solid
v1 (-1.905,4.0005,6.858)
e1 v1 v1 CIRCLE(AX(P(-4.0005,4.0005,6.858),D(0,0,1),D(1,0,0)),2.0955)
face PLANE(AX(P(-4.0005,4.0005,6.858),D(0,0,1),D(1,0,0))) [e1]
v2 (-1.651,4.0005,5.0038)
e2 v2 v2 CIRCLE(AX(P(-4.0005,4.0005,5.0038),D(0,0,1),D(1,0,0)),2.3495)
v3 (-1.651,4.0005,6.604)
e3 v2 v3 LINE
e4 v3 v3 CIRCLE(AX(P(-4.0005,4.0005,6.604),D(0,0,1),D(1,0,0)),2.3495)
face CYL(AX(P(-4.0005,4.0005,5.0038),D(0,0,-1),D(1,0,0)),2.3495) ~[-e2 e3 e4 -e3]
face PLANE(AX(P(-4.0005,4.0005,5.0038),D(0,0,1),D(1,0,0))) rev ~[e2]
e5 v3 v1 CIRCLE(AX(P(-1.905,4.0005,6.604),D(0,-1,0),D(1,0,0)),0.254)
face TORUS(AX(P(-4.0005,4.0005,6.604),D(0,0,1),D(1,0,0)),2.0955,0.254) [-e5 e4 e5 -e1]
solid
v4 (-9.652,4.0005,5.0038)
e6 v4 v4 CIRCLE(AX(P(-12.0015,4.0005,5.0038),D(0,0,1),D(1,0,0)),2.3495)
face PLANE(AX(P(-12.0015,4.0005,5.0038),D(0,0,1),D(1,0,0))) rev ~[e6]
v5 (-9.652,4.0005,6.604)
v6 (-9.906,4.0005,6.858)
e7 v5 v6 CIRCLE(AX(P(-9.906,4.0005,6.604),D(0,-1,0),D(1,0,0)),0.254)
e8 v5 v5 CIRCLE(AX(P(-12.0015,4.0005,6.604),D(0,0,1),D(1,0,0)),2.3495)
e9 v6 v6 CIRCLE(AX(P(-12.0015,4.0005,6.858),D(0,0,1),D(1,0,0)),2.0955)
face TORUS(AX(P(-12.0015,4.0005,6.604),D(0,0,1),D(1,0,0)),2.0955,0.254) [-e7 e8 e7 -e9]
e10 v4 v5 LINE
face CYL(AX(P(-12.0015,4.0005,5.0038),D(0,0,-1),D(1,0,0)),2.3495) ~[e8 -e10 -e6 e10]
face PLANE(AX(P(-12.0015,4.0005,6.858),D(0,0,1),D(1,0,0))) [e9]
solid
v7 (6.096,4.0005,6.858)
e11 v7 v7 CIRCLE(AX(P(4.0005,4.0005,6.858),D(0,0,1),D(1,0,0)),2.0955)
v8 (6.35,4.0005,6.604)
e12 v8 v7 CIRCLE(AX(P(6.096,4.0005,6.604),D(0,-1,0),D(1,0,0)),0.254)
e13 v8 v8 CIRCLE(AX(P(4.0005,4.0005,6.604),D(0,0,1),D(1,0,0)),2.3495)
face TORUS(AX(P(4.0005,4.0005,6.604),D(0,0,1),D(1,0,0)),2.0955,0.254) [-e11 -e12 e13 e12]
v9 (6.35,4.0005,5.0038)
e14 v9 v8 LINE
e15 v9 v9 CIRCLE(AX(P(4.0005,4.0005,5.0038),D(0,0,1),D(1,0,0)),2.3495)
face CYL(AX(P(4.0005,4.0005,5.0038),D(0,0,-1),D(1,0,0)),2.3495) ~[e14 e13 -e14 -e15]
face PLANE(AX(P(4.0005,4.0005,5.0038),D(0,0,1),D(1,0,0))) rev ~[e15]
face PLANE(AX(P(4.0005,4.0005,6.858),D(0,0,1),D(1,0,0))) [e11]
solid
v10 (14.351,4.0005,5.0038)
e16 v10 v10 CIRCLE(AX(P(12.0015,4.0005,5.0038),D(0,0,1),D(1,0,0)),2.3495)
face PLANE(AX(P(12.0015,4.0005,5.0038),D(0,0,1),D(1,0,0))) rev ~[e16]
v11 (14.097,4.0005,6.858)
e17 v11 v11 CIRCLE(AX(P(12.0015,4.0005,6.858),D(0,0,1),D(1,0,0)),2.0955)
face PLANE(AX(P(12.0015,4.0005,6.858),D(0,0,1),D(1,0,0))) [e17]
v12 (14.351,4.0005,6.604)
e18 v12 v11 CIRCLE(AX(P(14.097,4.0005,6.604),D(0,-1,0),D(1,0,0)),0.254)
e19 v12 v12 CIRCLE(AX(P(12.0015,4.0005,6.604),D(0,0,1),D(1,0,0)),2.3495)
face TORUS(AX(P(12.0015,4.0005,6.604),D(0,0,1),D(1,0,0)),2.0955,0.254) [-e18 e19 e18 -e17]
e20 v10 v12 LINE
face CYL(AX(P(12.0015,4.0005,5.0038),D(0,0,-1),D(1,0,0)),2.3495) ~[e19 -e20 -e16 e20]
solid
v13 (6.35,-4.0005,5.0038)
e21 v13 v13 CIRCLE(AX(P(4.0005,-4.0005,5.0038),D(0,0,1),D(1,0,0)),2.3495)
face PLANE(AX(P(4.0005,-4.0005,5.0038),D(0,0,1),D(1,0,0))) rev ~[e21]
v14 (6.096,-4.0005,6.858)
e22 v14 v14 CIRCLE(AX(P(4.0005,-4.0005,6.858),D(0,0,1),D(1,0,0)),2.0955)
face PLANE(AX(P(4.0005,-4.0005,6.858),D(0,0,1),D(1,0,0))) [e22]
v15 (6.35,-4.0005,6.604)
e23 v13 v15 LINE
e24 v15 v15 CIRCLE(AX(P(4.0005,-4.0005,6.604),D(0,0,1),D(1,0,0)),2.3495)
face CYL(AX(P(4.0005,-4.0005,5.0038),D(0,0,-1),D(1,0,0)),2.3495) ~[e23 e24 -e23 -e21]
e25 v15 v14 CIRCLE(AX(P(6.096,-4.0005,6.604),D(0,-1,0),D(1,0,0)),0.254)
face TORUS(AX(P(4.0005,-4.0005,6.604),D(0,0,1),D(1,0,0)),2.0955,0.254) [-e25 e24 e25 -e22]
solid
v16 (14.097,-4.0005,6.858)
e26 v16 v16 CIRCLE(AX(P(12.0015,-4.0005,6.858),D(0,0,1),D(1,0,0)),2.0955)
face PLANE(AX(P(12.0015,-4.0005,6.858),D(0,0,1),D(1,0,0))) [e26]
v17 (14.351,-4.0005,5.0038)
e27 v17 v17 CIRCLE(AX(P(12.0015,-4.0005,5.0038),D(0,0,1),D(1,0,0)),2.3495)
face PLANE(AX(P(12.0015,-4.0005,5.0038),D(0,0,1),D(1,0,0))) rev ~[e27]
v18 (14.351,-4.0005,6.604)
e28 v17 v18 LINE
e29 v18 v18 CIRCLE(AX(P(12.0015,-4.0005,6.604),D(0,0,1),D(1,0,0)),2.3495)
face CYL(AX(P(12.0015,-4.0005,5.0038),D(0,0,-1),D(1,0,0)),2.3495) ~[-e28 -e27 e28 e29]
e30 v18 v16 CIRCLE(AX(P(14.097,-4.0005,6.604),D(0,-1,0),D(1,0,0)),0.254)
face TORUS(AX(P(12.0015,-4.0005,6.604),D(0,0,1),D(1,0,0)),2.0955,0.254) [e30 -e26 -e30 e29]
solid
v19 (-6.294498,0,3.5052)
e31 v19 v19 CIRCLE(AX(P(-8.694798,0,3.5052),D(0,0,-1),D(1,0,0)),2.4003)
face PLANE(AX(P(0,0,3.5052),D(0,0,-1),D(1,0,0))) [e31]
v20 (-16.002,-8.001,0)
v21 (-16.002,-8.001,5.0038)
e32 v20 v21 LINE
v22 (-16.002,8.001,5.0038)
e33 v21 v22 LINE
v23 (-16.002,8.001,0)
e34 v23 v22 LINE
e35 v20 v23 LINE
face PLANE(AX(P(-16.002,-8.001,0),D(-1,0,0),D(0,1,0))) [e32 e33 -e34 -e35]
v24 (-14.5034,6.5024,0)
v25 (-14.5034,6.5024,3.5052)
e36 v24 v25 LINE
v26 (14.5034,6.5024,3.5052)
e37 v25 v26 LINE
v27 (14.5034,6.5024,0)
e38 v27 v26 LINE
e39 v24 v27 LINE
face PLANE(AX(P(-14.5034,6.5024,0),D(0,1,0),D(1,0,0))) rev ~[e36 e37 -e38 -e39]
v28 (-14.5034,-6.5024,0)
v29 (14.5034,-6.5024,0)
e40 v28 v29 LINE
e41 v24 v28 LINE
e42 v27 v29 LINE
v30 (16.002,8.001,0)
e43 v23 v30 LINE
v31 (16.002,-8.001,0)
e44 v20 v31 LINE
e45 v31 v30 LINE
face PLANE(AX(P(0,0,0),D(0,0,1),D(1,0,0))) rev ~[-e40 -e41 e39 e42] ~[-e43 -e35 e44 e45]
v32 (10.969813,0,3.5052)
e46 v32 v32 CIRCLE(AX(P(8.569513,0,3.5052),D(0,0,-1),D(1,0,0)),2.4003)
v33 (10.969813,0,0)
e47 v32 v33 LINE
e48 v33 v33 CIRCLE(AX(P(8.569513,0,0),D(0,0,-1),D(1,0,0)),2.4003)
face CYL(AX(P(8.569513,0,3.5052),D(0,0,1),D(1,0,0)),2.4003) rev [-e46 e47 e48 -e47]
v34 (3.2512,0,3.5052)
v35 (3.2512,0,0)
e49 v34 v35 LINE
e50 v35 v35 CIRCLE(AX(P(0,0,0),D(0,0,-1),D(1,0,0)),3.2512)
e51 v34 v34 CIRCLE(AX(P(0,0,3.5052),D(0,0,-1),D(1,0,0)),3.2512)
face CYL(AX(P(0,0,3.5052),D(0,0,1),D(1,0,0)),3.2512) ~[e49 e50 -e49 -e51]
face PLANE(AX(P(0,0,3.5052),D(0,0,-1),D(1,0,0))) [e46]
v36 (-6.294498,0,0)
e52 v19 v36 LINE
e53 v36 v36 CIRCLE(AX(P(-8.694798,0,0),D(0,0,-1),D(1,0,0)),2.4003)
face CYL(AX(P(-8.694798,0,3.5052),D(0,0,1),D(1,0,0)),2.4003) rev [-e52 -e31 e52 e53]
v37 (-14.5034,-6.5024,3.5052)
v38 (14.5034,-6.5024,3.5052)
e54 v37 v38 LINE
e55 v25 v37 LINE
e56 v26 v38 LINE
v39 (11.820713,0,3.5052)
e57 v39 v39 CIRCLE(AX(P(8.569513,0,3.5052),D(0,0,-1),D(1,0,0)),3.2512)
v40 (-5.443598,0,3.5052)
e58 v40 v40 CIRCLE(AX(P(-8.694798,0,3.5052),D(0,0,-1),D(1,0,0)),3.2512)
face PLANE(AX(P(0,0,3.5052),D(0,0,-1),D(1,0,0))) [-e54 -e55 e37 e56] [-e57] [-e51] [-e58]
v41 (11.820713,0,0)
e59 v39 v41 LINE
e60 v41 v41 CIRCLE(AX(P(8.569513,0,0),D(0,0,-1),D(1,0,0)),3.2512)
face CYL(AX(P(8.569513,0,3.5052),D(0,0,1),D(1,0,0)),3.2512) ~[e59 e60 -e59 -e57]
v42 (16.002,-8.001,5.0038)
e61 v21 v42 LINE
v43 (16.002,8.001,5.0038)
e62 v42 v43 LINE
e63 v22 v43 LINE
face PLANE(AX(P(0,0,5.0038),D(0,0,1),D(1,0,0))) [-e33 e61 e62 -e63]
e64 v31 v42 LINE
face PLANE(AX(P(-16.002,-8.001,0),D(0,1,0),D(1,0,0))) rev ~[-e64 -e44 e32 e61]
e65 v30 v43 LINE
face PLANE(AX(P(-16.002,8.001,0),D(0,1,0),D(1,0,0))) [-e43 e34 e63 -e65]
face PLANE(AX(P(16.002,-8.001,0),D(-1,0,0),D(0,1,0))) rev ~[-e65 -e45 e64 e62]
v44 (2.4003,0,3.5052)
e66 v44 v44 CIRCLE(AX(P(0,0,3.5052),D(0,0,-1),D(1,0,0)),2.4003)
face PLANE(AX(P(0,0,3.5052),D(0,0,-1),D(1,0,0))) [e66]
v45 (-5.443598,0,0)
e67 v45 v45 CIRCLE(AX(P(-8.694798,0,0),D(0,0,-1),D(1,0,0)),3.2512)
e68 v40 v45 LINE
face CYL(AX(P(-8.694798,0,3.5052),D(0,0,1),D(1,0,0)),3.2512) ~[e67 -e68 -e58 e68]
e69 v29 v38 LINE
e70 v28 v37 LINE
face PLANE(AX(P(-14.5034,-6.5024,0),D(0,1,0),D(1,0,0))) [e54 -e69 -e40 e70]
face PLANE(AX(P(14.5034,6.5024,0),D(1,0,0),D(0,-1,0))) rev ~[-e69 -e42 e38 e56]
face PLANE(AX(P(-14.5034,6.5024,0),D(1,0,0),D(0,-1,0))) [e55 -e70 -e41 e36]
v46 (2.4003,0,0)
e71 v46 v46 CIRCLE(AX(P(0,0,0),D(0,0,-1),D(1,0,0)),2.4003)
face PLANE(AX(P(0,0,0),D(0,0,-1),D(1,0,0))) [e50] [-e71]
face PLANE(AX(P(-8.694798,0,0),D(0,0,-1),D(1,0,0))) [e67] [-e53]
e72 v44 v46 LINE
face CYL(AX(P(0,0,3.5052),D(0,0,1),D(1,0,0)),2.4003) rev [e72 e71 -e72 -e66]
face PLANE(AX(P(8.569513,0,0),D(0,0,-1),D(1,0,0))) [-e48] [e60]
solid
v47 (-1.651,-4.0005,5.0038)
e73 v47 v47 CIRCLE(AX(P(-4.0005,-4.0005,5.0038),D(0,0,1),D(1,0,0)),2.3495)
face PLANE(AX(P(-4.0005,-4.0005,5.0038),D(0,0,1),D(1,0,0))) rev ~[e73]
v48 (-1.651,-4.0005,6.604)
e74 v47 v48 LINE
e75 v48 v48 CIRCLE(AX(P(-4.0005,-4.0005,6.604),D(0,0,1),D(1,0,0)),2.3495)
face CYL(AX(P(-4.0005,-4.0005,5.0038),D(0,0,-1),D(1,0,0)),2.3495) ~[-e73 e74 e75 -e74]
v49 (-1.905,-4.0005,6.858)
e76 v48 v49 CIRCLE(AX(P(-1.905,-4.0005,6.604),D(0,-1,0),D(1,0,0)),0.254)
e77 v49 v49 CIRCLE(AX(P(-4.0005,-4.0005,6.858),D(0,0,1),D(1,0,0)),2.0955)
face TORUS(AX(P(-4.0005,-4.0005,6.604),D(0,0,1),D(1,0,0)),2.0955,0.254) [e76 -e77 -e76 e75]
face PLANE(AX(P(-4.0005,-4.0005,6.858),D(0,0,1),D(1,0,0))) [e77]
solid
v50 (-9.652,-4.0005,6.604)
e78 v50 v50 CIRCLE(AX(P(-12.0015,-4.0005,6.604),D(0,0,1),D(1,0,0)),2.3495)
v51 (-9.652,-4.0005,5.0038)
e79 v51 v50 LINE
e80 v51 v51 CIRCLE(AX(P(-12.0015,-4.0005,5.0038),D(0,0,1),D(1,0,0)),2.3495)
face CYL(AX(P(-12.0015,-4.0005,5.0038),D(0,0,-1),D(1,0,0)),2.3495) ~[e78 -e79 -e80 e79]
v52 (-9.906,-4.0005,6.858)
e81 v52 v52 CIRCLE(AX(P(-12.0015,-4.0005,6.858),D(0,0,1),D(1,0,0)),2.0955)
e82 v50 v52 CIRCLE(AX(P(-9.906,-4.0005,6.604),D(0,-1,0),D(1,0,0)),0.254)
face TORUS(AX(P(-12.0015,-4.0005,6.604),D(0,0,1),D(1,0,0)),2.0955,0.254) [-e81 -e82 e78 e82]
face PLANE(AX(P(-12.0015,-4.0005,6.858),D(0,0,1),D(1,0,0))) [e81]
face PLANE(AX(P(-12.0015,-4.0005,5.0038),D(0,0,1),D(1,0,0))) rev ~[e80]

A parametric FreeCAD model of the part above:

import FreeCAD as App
import Part
import Sketcher

V = App.Vector
Q = App.Units.Quantity


def edges_at(feature, points):
    """Names of the edges that pass closest to the given points."""
    edges = feature.Shape.Edges
    near = lambda p: min(range(len(edges)), key=lambda i: edges[i].distToShape(Part.Vertex(*p))[0])
    return sorted({f"Edge{near(p) + 1}" for p in points})

doc = App.newDocument("Part")
body = doc.addObject("PartDesign::Body", "Body")

# Sketch on XY plane
sketch1 = body.newObject("Sketcher::SketchObject", "Sketch")
sketch1.AttachmentSupport = (doc.getObject("XY_Plane"), [""])
sketch1.MapMode = "FlatFace"
sketch1.addGeometry(Part.LineSegment(V(-16, 8, 0), V(-16, -8, 0)), False)
sketch1.addGeometry(Part.LineSegment(V(-16, -8, 0), V(16, -8, 0)), False)
sketch1.addGeometry(Part.LineSegment(V(16, -8, 0), V(16, 8, 0)), False)
sketch1.addGeometry(Part.LineSegment(V(16, 8, 0), V(-16, 8, 0)), False)
sketch1.addConstraint(Sketcher.Constraint("Coincident", 0, 2, 1, 1))
sketch1.addConstraint(Sketcher.Constraint("Coincident", 1, 2, 2, 1))
sketch1.addConstraint(Sketcher.Constraint("Coincident", 2, 2, 3, 1))
sketch1.addConstraint(Sketcher.Constraint("Coincident", 3, 2, 0, 1))
sketch1.addConstraint(Sketcher.Constraint("Vertical", 0))
sketch1.addConstraint(Sketcher.Constraint("Horizontal", 1))
sketch1.addConstraint(Sketcher.Constraint("Vertical", 2))
sketch1.addConstraint(Sketcher.Constraint("Horizontal", 3))
sketch1.addConstraint(Sketcher.Constraint("Symmetric", 0, 2, 2, 2, -1, 1))
sketch1.addConstraint(Sketcher.Constraint("DistanceX", 1, 1, 1, 2, Q("1.26 in")))
sketch1.addConstraint(Sketcher.Constraint("DistanceY", 0, 2, 0, 1, Q("0.63 in")))
pad1 = body.newObject("PartDesign::Pad", "Pad")
pad1.Profile = sketch1
pad1.Length = Q("0.197 in")

# Sketch on XY plane
sketch2 = body.newObject("Sketcher::SketchObject", "Sketch001")
sketch2.AttachmentSupport = (doc.getObject("XY_Plane"), [""])
sketch2.MapMode = "FlatFace"
sketch2.addGeometry(Part.LineSegment(V(-15, -7, 0), V(-15, 7, 0)), False)
sketch2.addGeometry(Part.LineSegment(V(-15, 7, 0), V(15, 7, 0)), False)
sketch2.addGeometry(Part.LineSegment(V(15, 7, 0), V(15, -7, 0)), False)
sketch2.addGeometry(Part.LineSegment(V(15, -7, 0), V(-15, -7, 0)), False)
sketch2.addConstraint(Sketcher.Constraint("Coincident", 0, 2, 1, 1))
sketch2.addConstraint(Sketcher.Constraint("Coincident", 1, 2, 2, 1))
sketch2.addConstraint(Sketcher.Constraint("Coincident", 2, 2, 3, 1))
sketch2.addConstraint(Sketcher.Constraint("Coincident", 3, 2, 0, 1))
sketch2.addConstraint(Sketcher.Constraint("Vertical", 0))
sketch2.addConstraint(Sketcher.Constraint("Horizontal", 1))
sketch2.addConstraint(Sketcher.Constraint("Vertical", 2))
sketch2.addConstraint(Sketcher.Constraint("Horizontal", 3))
sketch2.addConstraint(Sketcher.Constraint("Symmetric", 0, 2, 2, 2, -1, 1))
sketch2.addConstraint(Sketcher.Constraint("DistanceX", 1, 1, 1, 2, Q("1.142 in")))
sketch2.addConstraint(Sketcher.Constraint("DistanceY", 0, 1, 0, 2, Q("0.512 in")))
pocket1 = body.newObject("PartDesign::Pocket", "Pocket")
pocket1.Profile = sketch2
pocket1.Length = Q("0.138 in")
pocket1.Reversed = True

# Sketch on XY plane
sketch3 = body.newObject("Sketcher::SketchObject", "Sketch002")
sketch3.AttachmentSupport = (doc.getObject("XY_Plane"), [""])
sketch3.MapMode = "FlatFace"
sketch3.AttachmentOffset = App.Placement(V(0, 0, 0.138 * 25.4), App.Rotation())
sketch3.addGeometry(Part.Circle(V(0, 0, 0), V(0, 0, 1), 3.3), False)
sketch3.addGeometry(Part.Circle(V(0, 0, 0), V(0, 0, 1), 2.4), False)
sketch3.addGeometry(Part.Circle(V(8.6, 0, 0), V(0, 0, 1), 3.3), False)
sketch3.addGeometry(Part.Circle(V(8.6, 0, 0), V(0, 0, 1), 2.4), False)
sketch3.addGeometry(Part.Circle(V(-8.7, 0, 0), V(0, 0, 1), 3.3), False)
sketch3.addGeometry(Part.Circle(V(-8.7, 0, 0), V(0, 0, 1), 2.4), False)
sketch3.addConstraint(Sketcher.Constraint("Coincident", 0, 3, -1, 1))
sketch3.addConstraint(Sketcher.Constraint("Coincident", 1, 3, -1, 1))
sketch3.addConstraint(Sketcher.Constraint("Coincident", 3, 3, 2, 3))
sketch3.addConstraint(Sketcher.Constraint("Coincident", 5, 3, 4, 3))
sketch3.addConstraint(Sketcher.Constraint("Equal", 0, 2))
sketch3.addConstraint(Sketcher.Constraint("Equal", 1, 3))
sketch3.addConstraint(Sketcher.Constraint("Equal", 2, 4))
sketch3.addConstraint(Sketcher.Constraint("Equal", 3, 5))
sketch3.addConstraint(Sketcher.Constraint("PointOnObject", 2, 3, -1))
sketch3.addConstraint(Sketcher.Constraint("PointOnObject", 4, 3, -1))
sketch3.addConstraint(Sketcher.Constraint("Diameter", 0, Q("0.256 in")))
sketch3.addConstraint(Sketcher.Constraint("Diameter", 1, Q("0.189 in")))
sketch3.addConstraint(Sketcher.Constraint("DistanceX", 4, 3, 2, 3, 17.264311))
sketch3.addConstraint(Sketcher.Constraint("DistanceX", -1, 1, 2, 3, 8.569513))
pad2 = body.newObject("PartDesign::Pad", "Pad001")
pad2.Profile = sketch3
pad2.Length = Q("0.138 in")
pad2.Reversed = True
body2 = doc.addObject("PartDesign::Body", "Body001")
body2.AllowCompound = True

# Sketch on XY plane
sketch4 = body2.newObject("Sketcher::SketchObject", "Sketch003")
sketch4.AttachmentSupport = (doc.getObject("XY_Plane001"), [""])
sketch4.MapMode = "FlatFace"
sketch4.AttachmentOffset = App.Placement(V(0, 0, 0.197 * 25.4), App.Rotation())
sketch4.addGeometry(Part.Circle(V(-12, 4, 0), V(0, 0, 1), 2.3), False)
sketch4.addGeometry(Part.Circle(V(-4, 4, 0), V(0, 0, 1), 2.3), False)
sketch4.addGeometry(Part.Circle(V(4, 4, 0), V(0, 0, 1), 2.3), False)
sketch4.addGeometry(Part.Circle(V(12, 4, 0), V(0, 0, 1), 2.3), False)
sketch4.addGeometry(Part.Circle(V(-12, -4, 0), V(0, 0, 1), 2.3), False)
sketch4.addGeometry(Part.Circle(V(-4, -4, 0), V(0, 0, 1), 2.3), False)
sketch4.addGeometry(Part.Circle(V(4, -4, 0), V(0, 0, 1), 2.3), False)
sketch4.addGeometry(Part.Circle(V(12, -4, 0), V(0, 0, 1), 2.3), False)
sketch4.addConstraint(Sketcher.Constraint("Equal", 0, 1))
sketch4.addConstraint(Sketcher.Constraint("Equal", 1, 2))
sketch4.addConstraint(Sketcher.Constraint("Equal", 2, 3))
sketch4.addConstraint(Sketcher.Constraint("Equal", 3, 4))
sketch4.addConstraint(Sketcher.Constraint("Equal", 4, 5))
sketch4.addConstraint(Sketcher.Constraint("Equal", 5, 6))
sketch4.addConstraint(Sketcher.Constraint("Equal", 6, 7))
sketch4.addConstraint(Sketcher.Constraint("Symmetric", 3, 3, 4, 3, -1, 1))
sketch4.addConstraint(Sketcher.Constraint("Symmetric", 2, 3, 5, 3, -1, 1))
sketch4.addConstraint(Sketcher.Constraint("Symmetric", 1, 3, 6, 3, -1, 1))
sketch4.addConstraint(Sketcher.Constraint("Symmetric", 0, 3, 7, 3, -1, 1))
sketch4.addConstraint(Sketcher.Constraint("Symmetric", 1, 3, 2, 3, -2))
sketch4.addConstraint(Sketcher.Constraint("Symmetric", 0, 3, 3, 3, -2))
sketch4.addConstraint(Sketcher.Constraint("Horizontal", 0, 3, 1, 3))
sketch4.addConstraint(Sketcher.Constraint("Diameter", 0, Q("0.185 in")))
sketch4.addConstraint(Sketcher.Constraint("DistanceX", 0, 3, 2, 3, Q("0.63 in")))
sketch4.addConstraint(Sketcher.Constraint("DistanceX", 0, 3, 1, 3, Q("0.315 in")))
sketch4.addConstraint(Sketcher.Constraint("DistanceY", 4, 3, 0, 3, Q("0.315 in")))
pad3 = body2.newObject("PartDesign::Pad", "Pad002")
pad3.Profile = sketch4
pad3.Length = Q("0.073 in")
doc.recompute()

fillet = body2.newObject("PartDesign::Fillet", "Fillet")
fillet.Base = (pad3, edges_at(pad3, [
    (-14.351, -4, 6.858),
    (-14.351, 4, 6.858),
    (-6.35, -4, 6.858),
    (-6.35, 4, 6.858),
    (1.651, -4, 6.858),
    (1.651, 4, 6.858),
    (9.652, 4, 6.858),
    (9.652, -4, 6.858),
]))
fillet.Radius = Q("0.01 in")

doc.recompute()
